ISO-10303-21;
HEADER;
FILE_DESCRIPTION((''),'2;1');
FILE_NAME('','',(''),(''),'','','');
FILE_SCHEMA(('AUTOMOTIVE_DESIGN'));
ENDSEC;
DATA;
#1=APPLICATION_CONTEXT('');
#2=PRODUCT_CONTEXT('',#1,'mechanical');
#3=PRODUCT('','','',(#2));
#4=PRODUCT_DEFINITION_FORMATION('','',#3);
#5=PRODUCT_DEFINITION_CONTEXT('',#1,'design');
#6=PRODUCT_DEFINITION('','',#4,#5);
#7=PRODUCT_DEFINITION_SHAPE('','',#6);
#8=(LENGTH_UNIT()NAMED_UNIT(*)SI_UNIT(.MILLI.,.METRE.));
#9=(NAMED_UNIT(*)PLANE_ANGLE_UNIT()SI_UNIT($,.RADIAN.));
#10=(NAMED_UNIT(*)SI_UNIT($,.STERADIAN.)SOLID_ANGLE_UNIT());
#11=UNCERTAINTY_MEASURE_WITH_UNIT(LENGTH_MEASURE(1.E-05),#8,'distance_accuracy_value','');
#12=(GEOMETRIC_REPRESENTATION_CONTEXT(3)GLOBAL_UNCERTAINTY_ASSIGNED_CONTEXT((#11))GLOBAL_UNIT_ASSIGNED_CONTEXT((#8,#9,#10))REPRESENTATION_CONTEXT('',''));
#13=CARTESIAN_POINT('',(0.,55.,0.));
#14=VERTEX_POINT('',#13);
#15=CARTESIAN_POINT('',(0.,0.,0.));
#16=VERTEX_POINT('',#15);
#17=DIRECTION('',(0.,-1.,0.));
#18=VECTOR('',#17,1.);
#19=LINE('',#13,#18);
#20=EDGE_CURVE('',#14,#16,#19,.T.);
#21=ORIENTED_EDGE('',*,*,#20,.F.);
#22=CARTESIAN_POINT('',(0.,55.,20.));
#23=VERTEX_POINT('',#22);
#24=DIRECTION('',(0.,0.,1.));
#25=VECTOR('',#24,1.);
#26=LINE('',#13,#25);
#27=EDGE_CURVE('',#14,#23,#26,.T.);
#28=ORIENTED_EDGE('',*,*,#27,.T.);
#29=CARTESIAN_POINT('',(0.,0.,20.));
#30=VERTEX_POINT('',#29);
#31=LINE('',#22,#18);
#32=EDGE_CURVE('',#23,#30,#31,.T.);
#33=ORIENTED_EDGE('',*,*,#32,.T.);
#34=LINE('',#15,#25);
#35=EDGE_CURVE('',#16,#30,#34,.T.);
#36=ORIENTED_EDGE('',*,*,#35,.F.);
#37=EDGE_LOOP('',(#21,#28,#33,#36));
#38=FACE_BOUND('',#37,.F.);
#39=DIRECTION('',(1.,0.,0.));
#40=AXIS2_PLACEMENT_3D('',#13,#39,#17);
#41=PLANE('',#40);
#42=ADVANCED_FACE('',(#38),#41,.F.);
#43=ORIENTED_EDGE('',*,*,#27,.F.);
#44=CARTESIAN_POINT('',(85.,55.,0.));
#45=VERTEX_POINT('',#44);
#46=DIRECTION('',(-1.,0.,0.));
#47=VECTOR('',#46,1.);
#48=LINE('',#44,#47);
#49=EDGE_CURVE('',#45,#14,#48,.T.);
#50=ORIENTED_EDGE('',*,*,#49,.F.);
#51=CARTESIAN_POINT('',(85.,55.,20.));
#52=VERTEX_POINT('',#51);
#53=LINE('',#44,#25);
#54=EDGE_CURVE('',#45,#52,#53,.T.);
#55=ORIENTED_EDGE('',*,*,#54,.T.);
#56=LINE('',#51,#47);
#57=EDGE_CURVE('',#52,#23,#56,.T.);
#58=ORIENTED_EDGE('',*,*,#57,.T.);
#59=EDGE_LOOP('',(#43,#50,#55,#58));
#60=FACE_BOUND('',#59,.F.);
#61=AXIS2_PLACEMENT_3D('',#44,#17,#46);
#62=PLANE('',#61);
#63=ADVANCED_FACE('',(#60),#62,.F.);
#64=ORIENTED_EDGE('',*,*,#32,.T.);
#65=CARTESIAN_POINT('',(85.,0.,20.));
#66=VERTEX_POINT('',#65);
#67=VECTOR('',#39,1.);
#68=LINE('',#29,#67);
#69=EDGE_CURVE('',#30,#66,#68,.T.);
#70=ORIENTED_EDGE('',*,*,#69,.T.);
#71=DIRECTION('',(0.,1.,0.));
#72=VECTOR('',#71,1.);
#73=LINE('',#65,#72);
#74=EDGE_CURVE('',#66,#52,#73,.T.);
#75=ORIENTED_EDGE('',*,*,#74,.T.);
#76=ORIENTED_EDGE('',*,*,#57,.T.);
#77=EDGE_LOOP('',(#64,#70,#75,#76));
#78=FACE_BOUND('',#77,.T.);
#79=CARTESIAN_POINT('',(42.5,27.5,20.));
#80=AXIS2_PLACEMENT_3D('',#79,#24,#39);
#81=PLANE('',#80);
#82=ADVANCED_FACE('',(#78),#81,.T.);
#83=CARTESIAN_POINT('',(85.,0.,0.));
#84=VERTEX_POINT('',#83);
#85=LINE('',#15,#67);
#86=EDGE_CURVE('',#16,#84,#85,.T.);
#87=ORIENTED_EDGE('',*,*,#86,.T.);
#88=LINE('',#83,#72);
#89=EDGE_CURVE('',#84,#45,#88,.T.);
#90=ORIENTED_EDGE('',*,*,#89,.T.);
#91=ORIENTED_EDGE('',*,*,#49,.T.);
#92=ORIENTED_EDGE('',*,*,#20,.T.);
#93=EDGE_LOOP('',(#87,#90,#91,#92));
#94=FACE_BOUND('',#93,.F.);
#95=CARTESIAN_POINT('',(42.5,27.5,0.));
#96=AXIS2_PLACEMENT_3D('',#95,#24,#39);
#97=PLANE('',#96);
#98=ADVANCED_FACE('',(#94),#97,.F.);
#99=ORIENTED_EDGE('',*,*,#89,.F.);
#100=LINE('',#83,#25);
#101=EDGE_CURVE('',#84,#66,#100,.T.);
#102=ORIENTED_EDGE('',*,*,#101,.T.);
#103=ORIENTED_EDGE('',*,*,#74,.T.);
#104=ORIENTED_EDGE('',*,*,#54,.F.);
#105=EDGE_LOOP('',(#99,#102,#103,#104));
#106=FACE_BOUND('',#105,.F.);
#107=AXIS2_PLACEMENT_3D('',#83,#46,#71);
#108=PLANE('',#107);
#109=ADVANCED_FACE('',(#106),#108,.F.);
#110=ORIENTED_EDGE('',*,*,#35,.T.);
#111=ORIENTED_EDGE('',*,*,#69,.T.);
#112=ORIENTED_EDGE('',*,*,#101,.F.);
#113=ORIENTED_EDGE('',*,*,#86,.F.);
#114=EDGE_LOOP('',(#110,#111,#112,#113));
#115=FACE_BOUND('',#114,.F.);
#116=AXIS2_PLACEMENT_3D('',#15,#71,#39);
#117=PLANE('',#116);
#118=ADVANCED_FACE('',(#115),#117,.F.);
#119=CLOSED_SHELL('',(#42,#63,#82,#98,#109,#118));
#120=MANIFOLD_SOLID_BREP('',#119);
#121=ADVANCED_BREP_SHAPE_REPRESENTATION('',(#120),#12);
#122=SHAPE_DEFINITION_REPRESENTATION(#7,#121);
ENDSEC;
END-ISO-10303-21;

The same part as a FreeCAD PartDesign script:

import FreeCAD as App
import Part
import Sketcher
Q = App.Units.Quantity

doc = App.newDocument("Part")
params = doc.addObject("Spreadsheet::Sheet", "Params")
for row, (alias, value) in enumerate([
    ("sketch1_width", "85 mm"),
    ("sketch1_height", "55 mm"),
    ("pad1_length", "20 mm"),
], start=1):
    params.set(f"A{row}", alias)
    params.set(f"B{row}", "=" + value)
    params.setAlias(f"B{row}", alias)

body = doc.addObject("PartDesign::Body", "Body")

# Sketch on XY plane
sketch1 = doc.addObject("Sketcher::SketchObject", "Sketch")
body.addObject(sketch1)
sketch1.AttachmentSupport = (doc.XY_Plane, [""])
sketch1.MapMode = "FlatFace"
sketch1.addGeometry([
    Part.LineSegment(App.Vector(0, 55, 0), App.Vector(0, 0, 0)),
    Part.LineSegment(App.Vector(0, 0, 0), App.Vector(85, 0, 0)),
    Part.LineSegment(App.Vector(85, 0, 0), App.Vector(85, 55, 0)),
    Part.LineSegment(App.Vector(85, 55, 0), App.Vector(0, 55, 0)),
], False)
sketch1.addConstraint([
    Sketcher.Constraint("Coincident", 0, 2, 1, 1),
    Sketcher.Constraint("Coincident", 1, 2, 2, 1),
    Sketcher.Constraint("Coincident", 2, 2, 3, 1),
    Sketcher.Constraint("Coincident", 3, 2, 0, 1),
    Sketcher.Constraint("Vertical", 0),
    Sketcher.Constraint("Horizontal", 1),
    Sketcher.Constraint("Vertical", 2),
    Sketcher.Constraint("Horizontal", 3),
    Sketcher.Constraint("Coincident", 0, 2, -1, 1),
    Sketcher.Constraint("DistanceX", 1, 1, 1, 2, Q("85 mm")),
    Sketcher.Constraint("DistanceY", 0, 2, 0, 1, Q("55 mm")),
])
sketch1.setExpression("Constraints[9]", "Params.sketch1_width")
sketch1.setExpression("Constraints[10]", "Params.sketch1_height")
pad1 = doc.addObject("PartDesign::Pad", "Pad")
body.addObject(pad1)
pad1.Profile = sketch1
pad1.setExpression("Length", "Params.pad1_length")

doc.recompute()
